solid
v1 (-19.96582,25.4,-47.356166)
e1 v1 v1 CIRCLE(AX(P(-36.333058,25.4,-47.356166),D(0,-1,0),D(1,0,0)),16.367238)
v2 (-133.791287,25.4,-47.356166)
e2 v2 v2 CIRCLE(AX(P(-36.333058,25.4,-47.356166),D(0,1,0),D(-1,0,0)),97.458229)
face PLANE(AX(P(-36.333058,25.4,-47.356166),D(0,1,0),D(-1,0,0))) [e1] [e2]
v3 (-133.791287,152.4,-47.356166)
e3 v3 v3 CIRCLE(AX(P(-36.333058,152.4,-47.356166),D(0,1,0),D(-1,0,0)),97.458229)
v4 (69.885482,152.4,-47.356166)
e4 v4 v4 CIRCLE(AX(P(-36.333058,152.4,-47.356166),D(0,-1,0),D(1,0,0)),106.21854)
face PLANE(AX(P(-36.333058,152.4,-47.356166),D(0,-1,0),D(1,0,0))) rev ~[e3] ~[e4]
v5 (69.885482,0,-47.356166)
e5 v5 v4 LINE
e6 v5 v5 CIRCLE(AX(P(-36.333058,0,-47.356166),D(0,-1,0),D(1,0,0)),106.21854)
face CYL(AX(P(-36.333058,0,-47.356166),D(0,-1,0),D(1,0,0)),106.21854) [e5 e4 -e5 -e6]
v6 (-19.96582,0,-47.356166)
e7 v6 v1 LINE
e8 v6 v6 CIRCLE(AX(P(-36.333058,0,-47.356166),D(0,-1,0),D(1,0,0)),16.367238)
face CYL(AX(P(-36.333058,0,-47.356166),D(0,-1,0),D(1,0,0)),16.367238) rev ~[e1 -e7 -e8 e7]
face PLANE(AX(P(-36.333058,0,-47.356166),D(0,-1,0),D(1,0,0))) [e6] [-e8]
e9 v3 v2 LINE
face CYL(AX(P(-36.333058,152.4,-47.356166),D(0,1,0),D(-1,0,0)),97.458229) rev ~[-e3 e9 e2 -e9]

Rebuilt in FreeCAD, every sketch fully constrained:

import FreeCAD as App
import Part
import Sketcher
from FreeCAD import Vector

doc = App.newDocument("Part")
params = doc.addObject("Spreadsheet::Sheet", "Params")
for row, (alias, value) in enumerate([
    ("pad1_length", "6 in"),
    ("pad2_length", "5 in"),
    ("pocket1_length", "5 in"),
    ("pocket2_length", "1 in"),
], start=1):
    params.set(f"A{row}", alias)
    params.set(f"B{row}", "=" + value)
    params.setAlias(f"B{row}", alias)

body = doc.addObject("PartDesign::Body", "Body")

# Sketch on XZ plane
sketch1 = body.newObject("Sketcher::SketchObject", "Sketch")
sketch1.AttachmentSupport = (doc.getObject("XZ_Plane"), [""])
sketch1.MapMode = "FlatFace"
sketch1.addGeometry(Part.Circle(Vector(-36, -47, 0), Vector(0, 0, 1), 106), False)
sketch1.addConstraint([
    Sketcher.Constraint("Diameter", 0, 212.43708),
    Sketcher.Constraint("DistanceX", 0, 3, -1, 1, 36.333058),
    Sketcher.Constraint("DistanceY", 0, 3, -1, 1, 47.356166),
])
pad1 = body.newObject("PartDesign::Pad", "Pad")
pad1.Profile = sketch1
pad1.setExpression("Length", "Params.pad1_length")
pad1.Reversed = True

# Sketch on XZ plane
sketch2 = body.newObject("Sketcher::SketchObject", "Sketch001")
sketch2.AttachmentSupport = (doc.getObject("XZ_Plane"), [""])
sketch2.MapMode = "FlatFace"
sketch2.addGeometry(Part.Circle(Vector(-36, -47, 0), Vector(0, 0, 1), 101), False)
sketch2.addConstraint([
    Sketcher.Constraint("Diameter", 0, 202.985784),
    Sketcher.Constraint("DistanceX", 0, 3, -1, 1, 36.333058),
    Sketcher.Constraint("DistanceY", 0, 3, -1, 1, 47.356166),
])
pad2 = body.newObject("PartDesign::Pad", "Pad001")
pad2.Profile = sketch2
pad2.setExpression("Length", "Params.pad2_length")
pad2.Reversed = True

# Sketch on XZ plane
sketch3 = body.newObject("Sketcher::SketchObject", "Sketch002")
sketch3.AttachmentSupport = (doc.getObject("XZ_Plane"), [""])
sketch3.MapMode = "FlatFace"
sketch3.AttachmentOffset = App.Placement(Vector(0, 0, -6 * 25.4), App.Rotation())
sketch3.addGeometry(Part.Circle(Vector(-36, -47, 0), Vector(0, 0, 1), 97), False)
sketch3.addConstraint([
    Sketcher.Constraint("Diameter", 0, 194.916458),
    Sketcher.Constraint("DistanceX", 0, 3, -1, 1, 36.333058),
    Sketcher.Constraint("DistanceY", 0, 3, -1, 1, 47.356166),
])
pocket1 = body.newObject("PartDesign::Pocket", "Pocket")
pocket1.Profile = sketch3
pocket1.setExpression("Length", "Params.pocket1_length")
pocket1.Reversed = True

# Sketch on XZ plane
sketch4 = body.newObject("Sketcher::SketchObject", "Sketch003")
sketch4.AttachmentSupport = (doc.getObject("XZ_Plane"), [""])
sketch4.MapMode = "FlatFace"
sketch4.addGeometry(Part.Circle(Vector(-36, -47, 0), Vector(0, 0, 1), 16), False)
sketch4.addConstraint([
    Sketcher.Constraint("Diameter", 0, 32.734476),
    Sketcher.Constraint("DistanceX", 0, 3, -1, 1, 36.333058),
    Sketcher.Constraint("DistanceY", 0, 3, -1, 1, 47.356166),
])
pocket2 = body.newObject("PartDesign::Pocket", "Pocket001")
pocket2.Profile = sketch4
pocket2.setExpression("Length", "Params.pocket2_length")

doc.recompute()
